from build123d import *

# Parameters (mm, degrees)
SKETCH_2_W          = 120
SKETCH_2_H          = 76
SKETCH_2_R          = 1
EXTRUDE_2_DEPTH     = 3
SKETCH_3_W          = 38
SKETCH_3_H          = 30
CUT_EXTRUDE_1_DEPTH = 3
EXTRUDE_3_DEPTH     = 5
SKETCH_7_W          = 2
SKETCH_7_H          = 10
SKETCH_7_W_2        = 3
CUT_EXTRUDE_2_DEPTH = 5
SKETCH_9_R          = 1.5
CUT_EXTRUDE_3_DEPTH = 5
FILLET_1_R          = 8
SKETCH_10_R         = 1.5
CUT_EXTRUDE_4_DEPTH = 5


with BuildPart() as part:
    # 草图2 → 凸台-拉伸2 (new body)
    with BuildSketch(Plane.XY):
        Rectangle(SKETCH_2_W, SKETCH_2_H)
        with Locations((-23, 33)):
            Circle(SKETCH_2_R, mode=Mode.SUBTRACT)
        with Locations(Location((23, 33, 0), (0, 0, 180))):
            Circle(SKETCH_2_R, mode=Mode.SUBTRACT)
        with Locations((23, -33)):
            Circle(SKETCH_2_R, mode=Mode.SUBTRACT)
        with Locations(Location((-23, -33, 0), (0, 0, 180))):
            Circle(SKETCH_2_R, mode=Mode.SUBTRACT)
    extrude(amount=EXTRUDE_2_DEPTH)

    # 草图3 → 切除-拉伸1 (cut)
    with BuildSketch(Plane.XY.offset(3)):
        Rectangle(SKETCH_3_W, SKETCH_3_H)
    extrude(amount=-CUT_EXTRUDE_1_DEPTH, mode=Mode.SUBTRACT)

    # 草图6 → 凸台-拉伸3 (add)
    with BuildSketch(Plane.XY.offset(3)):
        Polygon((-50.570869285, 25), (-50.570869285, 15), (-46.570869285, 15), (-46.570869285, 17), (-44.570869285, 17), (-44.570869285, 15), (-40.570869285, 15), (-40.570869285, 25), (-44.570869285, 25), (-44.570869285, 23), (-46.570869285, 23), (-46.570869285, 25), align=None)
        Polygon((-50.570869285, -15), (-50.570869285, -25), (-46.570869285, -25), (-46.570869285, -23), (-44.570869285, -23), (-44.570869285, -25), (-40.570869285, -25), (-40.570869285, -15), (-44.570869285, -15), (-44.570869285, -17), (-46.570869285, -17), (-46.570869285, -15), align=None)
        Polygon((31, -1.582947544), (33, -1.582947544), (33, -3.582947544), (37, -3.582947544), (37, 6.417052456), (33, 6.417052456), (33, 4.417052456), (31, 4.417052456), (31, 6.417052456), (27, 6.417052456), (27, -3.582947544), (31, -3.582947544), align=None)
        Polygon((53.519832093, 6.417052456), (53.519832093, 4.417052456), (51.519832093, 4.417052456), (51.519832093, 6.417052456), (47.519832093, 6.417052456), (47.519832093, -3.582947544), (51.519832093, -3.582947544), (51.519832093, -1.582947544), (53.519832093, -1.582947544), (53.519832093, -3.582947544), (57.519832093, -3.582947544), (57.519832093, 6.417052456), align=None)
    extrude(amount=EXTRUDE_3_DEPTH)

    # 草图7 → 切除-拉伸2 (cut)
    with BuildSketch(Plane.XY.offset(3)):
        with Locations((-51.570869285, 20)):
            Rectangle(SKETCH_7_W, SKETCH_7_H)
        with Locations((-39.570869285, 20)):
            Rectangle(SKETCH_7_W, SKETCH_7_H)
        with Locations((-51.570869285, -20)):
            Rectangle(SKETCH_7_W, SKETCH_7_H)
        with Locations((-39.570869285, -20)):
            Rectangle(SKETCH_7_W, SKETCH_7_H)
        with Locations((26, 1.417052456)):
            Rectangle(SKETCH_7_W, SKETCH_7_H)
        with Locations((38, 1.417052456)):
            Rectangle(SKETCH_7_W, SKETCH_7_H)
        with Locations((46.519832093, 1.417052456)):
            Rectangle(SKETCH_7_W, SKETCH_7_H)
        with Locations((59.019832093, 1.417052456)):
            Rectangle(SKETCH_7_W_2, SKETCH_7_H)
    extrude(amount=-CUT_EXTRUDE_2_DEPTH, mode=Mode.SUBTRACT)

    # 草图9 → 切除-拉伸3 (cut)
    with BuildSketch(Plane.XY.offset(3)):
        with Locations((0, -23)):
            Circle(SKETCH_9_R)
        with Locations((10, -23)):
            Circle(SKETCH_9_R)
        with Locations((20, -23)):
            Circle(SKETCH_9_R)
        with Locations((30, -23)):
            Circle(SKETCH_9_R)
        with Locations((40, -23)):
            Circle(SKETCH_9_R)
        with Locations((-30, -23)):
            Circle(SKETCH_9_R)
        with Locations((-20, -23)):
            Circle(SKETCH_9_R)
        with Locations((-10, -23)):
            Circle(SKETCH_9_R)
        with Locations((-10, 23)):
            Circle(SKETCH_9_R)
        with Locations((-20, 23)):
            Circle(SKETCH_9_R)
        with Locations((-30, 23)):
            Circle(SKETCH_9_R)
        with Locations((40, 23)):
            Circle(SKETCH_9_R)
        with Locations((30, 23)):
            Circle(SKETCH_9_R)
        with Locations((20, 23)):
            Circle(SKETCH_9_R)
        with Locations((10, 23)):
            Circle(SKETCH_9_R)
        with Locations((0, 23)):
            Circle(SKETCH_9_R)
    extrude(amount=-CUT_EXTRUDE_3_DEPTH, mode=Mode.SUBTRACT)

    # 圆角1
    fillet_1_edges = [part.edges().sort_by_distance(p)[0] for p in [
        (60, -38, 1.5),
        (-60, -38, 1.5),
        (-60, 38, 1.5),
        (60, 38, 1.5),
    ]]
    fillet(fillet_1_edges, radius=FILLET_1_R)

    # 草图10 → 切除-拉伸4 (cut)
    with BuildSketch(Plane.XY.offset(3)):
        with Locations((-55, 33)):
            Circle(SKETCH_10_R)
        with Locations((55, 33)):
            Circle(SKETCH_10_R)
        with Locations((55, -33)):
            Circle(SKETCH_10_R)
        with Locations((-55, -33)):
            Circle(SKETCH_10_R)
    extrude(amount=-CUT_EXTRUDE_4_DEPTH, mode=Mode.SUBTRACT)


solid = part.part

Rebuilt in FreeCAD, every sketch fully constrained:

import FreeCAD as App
import Part
import Sketcher

V = App.Vector


def edges_at(feature, points):
    """Names of the edges that pass closest to the given points."""
    edges = feature.Shape.Edges
    near = lambda p: min(range(len(edges)), key=lambda i: edges[i].distToShape(Part.Vertex(*p))[0])
    return sorted({f"Edge{near(p) + 1}" for p in points})

doc = App.newDocument("Part")
body = doc.addObject("PartDesign::Body", "Body")

# Sketch on XY plane
sketch1 = body.newObject("Sketcher::SketchObject", "Sketch")
sketch1.AttachmentSupport = (doc.getObject("XY_Plane"), [""])
sketch1.MapMode = "FlatFace"
sketch1.addGeometry([
    Part.LineSegment(V(-60, 38, 0), V(-60, -38, 0)),  # 0
    Part.LineSegment(V(-60, -38, 0), V(60, -38, 0)),  # 1
    Part.LineSegment(V(60, -38, 0), V(60, 38, 0)),  # 2
    Part.LineSegment(V(60, 38, 0), V(-60, 38, 0)),  # 3
    Part.Circle(V(-23, -33, 0), V(0, 0, 1), 1),  # 4
    Part.Circle(V(23, -33, 0), V(0, 0, 1), 1),  # 5
    Part.Circle(V(-23, 33, 0), V(0, 0, 1), 1),  # 6
    Part.Circle(V(23, 33, 0), V(0, 0, 1), 1),  # 7
], False)
sketch1.addConstraint([
    Sketcher.Constraint("Coincident", 0, 2, 1, 1),
    Sketcher.Constraint("Coincident", 1, 2, 2, 1),
    Sketcher.Constraint("Coincident", 2, 2, 3, 1),
    Sketcher.Constraint("Coincident", 3, 2, 0, 1),
    Sketcher.Constraint("Vertical", 0),
    Sketcher.Constraint("Horizontal", 1),
    Sketcher.Constraint("Vertical", 2),
    Sketcher.Constraint("Horizontal", 3),
    Sketcher.Constraint("Equal", 4, 5),
    Sketcher.Constraint("Equal", 5, 6),
    Sketcher.Constraint("Equal", 6, 7),
    Sketcher.Constraint("Symmetric", 5, 3, 6, 3, -1, 1),
    Sketcher.Constraint("Symmetric", 4, 3, 7, 3, -1, 1),
    Sketcher.Constraint("Symmetric", 0, 2, 2, 2, -1, 1),
    Sketcher.Constraint("Symmetric", 4, 3, 5, 3, -2),
    Sketcher.Constraint("Diameter", 4, 2.0),
    Sketcher.Constraint("DistanceX", 1, 1, 1, 2, 120.0),
    Sketcher.Constraint("DistanceY", 0, 2, 0, 1, 76.0),
    Sketcher.Constraint("DistanceX", 4, 3, -1, 1, 23.0),
    Sketcher.Constraint("DistanceY", 4, 3, -1, 1, 33.0),
])
pad1 = body.newObject("PartDesign::Pad", "Pad")
pad1.Profile = sketch1
pad1.Length = 3

# Sketch on XY plane
sketch2 = body.newObject("Sketcher::SketchObject", "Sketch001")
sketch2.AttachmentSupport = (doc.getObject("XY_Plane"), [""])
sketch2.MapMode = "FlatFace"
sketch2.AttachmentOffset = App.Placement(V(0, 0, 3), App.Rotation())
sketch2.addGeometry([
    Part.LineSegment(V(-19, 15, 0), V(-19, -15, 0)),
    Part.LineSegment(V(-19, -15, 0), V(19, -15, 0)),
    Part.LineSegment(V(19, -15, 0), V(19, 15, 0)),
    Part.LineSegment(V(19, 15, 0), V(-19, 15, 0)),
], False)
sketch2.addConstraint([
    Sketcher.Constraint("Coincident", 0, 2, 1, 1),
    Sketcher.Constraint("Coincident", 1, 2, 2, 1),
    Sketcher.Constraint("Coincident", 2, 2, 3, 1),
    Sketcher.Constraint("Coincident", 3, 2, 0, 1),
    Sketcher.Constraint("Vertical", 0),
    Sketcher.Constraint("Horizontal", 1),
    Sketcher.Constraint("Vertical", 2),
    Sketcher.Constraint("Horizontal", 3),
    Sketcher.Constraint("Symmetric", 0, 2, 2, 2, -1, 1),
    Sketcher.Constraint("DistanceX", 1, 1, 1, 2, 38.0),
    Sketcher.Constraint("DistanceY", 0, 2, 0, 1, 30.0),
])
pocket1 = body.newObject("PartDesign::Pocket", "Pocket")
pocket1.Profile = sketch2
pocket1.Length = 3

# Sketch on XY plane
sketch3 = body.newObject("Sketcher::SketchObject", "Sketch002")
sketch3.AttachmentSupport = (doc.getObject("XY_Plane"), [""])
sketch3.MapMode = "FlatFace"
sketch3.AttachmentOffset = App.Placement(V(0, 0, 3), App.Rotation())
sketch3.addGeometry([
    Part.LineSegment(V(-50.6, 25, 0), V(-50.6, 15, 0)),  # 0
    Part.LineSegment(V(-50.6, 15, 0), V(-46.6, 15, 0)),  # 1
    Part.LineSegment(V(-46.6, 15, 0), V(-46.6, 17, 0)),  # 2
    Part.LineSegment(V(-46.6, 17, 0), V(-44.6, 17, 0)),  # 3
    Part.LineSegment(V(-44.6, 17, 0), V(-44.6, 15, 0)),  # 4
    Part.LineSegment(V(-44.6, 15, 0), V(-40.6, 15, 0)),  # 5
    Part.LineSegment(V(-40.6, 15, 0), V(-40.6, 25, 0)),  # 6
    Part.LineSegment(V(-40.6, 25, 0), V(-44.6, 25, 0)),  # 7
    Part.LineSegment(V(-44.6, 25, 0), V(-44.6, 23, 0)),  # 8
    Part.LineSegment(V(-44.6, 23, 0), V(-46.6, 23, 0)),  # 9
    Part.LineSegment(V(-46.6, 23, 0), V(-46.6, 25, 0)),  # 10
    Part.LineSegment(V(-46.6, 25, 0), V(-50.6, 25, 0)),  # 11
    Part.LineSegment(V(-50.6, -15, 0), V(-50.6, -25, 0)),  # 12
    Part.LineSegment(V(-50.6, -25, 0), V(-46.6, -25, 0)),  # 13
    Part.LineSegment(V(-46.6, -25, 0), V(-46.6, -23, 0)),  # 14
    Part.LineSegment(V(-46.6, -23, 0), V(-44.6, -23, 0)),  # 15
    Part.LineSegment(V(-44.6, -23, 0), V(-44.6, -25, 0)),  # 16
    Part.LineSegment(V(-44.6, -25, 0), V(-40.6, -25, 0)),  # 17
    Part.LineSegment(V(-40.6, -25, 0), V(-40.6, -15, 0)),  # 18
    Part.LineSegment(V(-40.6, -15, 0), V(-44.6, -15, 0)),  # 19
    Part.LineSegment(V(-44.6, -15, 0), V(-44.6, -17, 0)),  # 20
    Part.LineSegment(V(-44.6, -17, 0), V(-46.6, -17, 0)),  # 21
    Part.LineSegment(V(-46.6, -17, 0), V(-46.6, -15, 0)),  # 22
    Part.LineSegment(V(-46.6, -15, 0), V(-50.6, -15, 0)),  # 23
    Part.LineSegment(V(31, -1.6, 0), V(33, -1.6, 0)),  # 24
    Part.LineSegment(V(33, -1.6, 0), V(33, -3.6, 0)),  # 25
    Part.LineSegment(V(33, -3.6, 0), V(37, -3.6, 0)),  # 26
    Part.LineSegment(V(37, -3.6, 0), V(37, 6.4, 0)),  # 27
    Part.LineSegment(V(37, 6.4, 0), V(33, 6.4, 0)),  # 28
    Part.LineSegment(V(33, 6.4, 0), V(33, 4.4, 0)),  # 29
    Part.LineSegment(V(33, 4.4, 0), V(31, 4.4, 0)),  # 30
    Part.LineSegment(V(31, 4.4, 0), V(31, 6.4, 0)),  # 31
    Part.LineSegment(V(31, 6.4, 0), V(27, 6.4, 0)),  # 32
    Part.LineSegment(V(27, 6.4, 0), V(27, -3.6, 0)),  # 33
    Part.LineSegment(V(27, -3.6, 0), V(31, -3.6, 0)),  # 34
    Part.LineSegment(V(31, -3.6, 0), V(31, -1.6, 0)),  # 35
    Part.LineSegment(V(53.5, 6.4, 0), V(53.5, 4.4, 0)),  # 36
    Part.LineSegment(V(53.5, 4.4, 0), V(51.5, 4.4, 0)),  # 37
    Part.LineSegment(V(51.5, 4.4, 0), V(51.5, 6.4, 0)),  # 38
    Part.LineSegment(V(51.5, 6.4, 0), V(47.5, 6.4, 0)),  # 39
    Part.LineSegment(V(47.5, 6.4, 0), V(47.5, -3.6, 0)),  # 40
    Part.LineSegment(V(47.5, -3.6, 0), V(51.5, -3.6, 0)),  # 41
    Part.LineSegment(V(51.5, -3.6, 0), V(51.5, -1.6, 0)),  # 42
    Part.LineSegment(V(51.5, -1.6, 0), V(53.5, -1.6, 0)),  # 43
    Part.LineSegment(V(53.5, -1.6, 0), V(53.5, -3.6, 0)),  # 44
    Part.LineSegment(V(53.5, -3.6, 0), V(57.5, -3.6, 0)),  # 45
    Part.LineSegment(V(57.5, -3.6, 0), V(57.5, 6.4, 0)),  # 46
    Part.LineSegment(V(57.5, 6.4, 0), V(53.5, 6.4, 0)),  # 47
], False)
sketch3.addConstraint([
    Sketcher.Constraint("Coincident", 0, 2, 1, 1),
    Sketcher.Constraint("Coincident", 1, 2, 2, 1),
    Sketcher.Constraint("Coincident", 2, 2, 3, 1),
    Sketcher.Constraint("Coincident", 3, 2, 4, 1),
    Sketcher.Constraint("Coincident", 4, 2, 5, 1),
    Sketcher.Constraint("Coincident", 5, 2, 6, 1),
    Sketcher.Constraint("Coincident", 6, 2, 7, 1),
    Sketcher.Constraint("Coincident", 7, 2, 8, 1),
    Sketcher.Constraint("Coincident", 8, 2, 9, 1),
    Sketcher.Constraint("Coincident", 9, 2, 10, 1),
    Sketcher.Constraint("Coincident", 10, 2, 11, 1),
    Sketcher.Constraint("Coincident", 11, 2, 0, 1),
    Sketcher.Constraint("Coincident", 12, 2, 13, 1),
    Sketcher.Constraint("Coincident", 13, 2, 14, 1),
    Sketcher.Constraint("Coincident", 14, 2, 15, 1),
    Sketcher.Constraint("Coincident", 15, 2, 16, 1),
    Sketcher.Constraint("Coincident", 16, 2, 17, 1),
    Sketcher.Constraint("Coincident", 17, 2, 18, 1),
    Sketcher.Constraint("Coincident", 18, 2, 19, 1),
    Sketcher.Constraint("Coincident", 19, 2, 20, 1),
    Sketcher.Constraint("Coincident", 20, 2, 21, 1),
    Sketcher.Constraint("Coincident", 21, 2, 22, 1),
    Sketcher.Constraint("Coincident", 22, 2, 23, 1),
    Sketcher.Constraint("Coincident", 23, 2, 12, 1),
    Sketcher.Constraint("Coincident", 24, 2, 25, 1),
    Sketcher.Constraint("Coincident", 25, 2, 26, 1),
    Sketcher.Constraint("Coincident", 26, 2, 27, 1),
    Sketcher.Constraint("Coincident", 27, 2, 28, 1),
    Sketcher.Constraint("Coincident", 28, 2, 29, 1),
    Sketcher.Constraint("Coincident", 29, 2, 30, 1),
    Sketcher.Constraint("Coincident", 30, 2, 31, 1),
    Sketcher.Constraint("Coincident", 31, 2, 32, 1),
    Sketcher.Constraint("Coincident", 32, 2, 33, 1),
    Sketcher.Constraint("Coincident", 33, 2, 34, 1),
    Sketcher.Constraint("Coincident", 34, 2, 35, 1),
    Sketcher.Constraint("Coincident", 35, 2, 24, 1),
    Sketcher.Constraint("Coincident", 36, 2, 37, 1),
    Sketcher.Constraint("Coincident", 37, 2, 38, 1),
    Sketcher.Constraint("Coincident", 38, 2, 39, 1),
    Sketcher.Constraint("Coincident", 39, 2, 40, 1),
    Sketcher.Constraint("Coincident", 40, 2, 41, 1),
    Sketcher.Constraint("Coincident", 41, 2, 42, 1),
    Sketcher.Constraint("Coincident", 42, 2, 43, 1),
    Sketcher.Constraint("Coincident", 43, 2, 44, 1),
    Sketcher.Constraint("Coincident", 44, 2, 45, 1),
    Sketcher.Constraint("Coincident", 45, 2, 46, 1),
    Sketcher.Constraint("Coincident", 46, 2, 47, 1),
    Sketcher.Constraint("Coincident", 47, 2, 36, 1),
    Sketcher.Constraint("Vertical", 0),
    Sketcher.Constraint("Horizontal", 1),
    Sketcher.Constraint("Vertical", 2),
    Sketcher.Constraint("Horizontal", 3),
    Sketcher.Constraint("Vertical", 4),
    Sketcher.Constraint("Horizontal", 5),
    Sketcher.Constraint("Vertical", 6),
    Sketcher.Constraint("Horizontal", 7),
    Sketcher.Constraint("Vertical", 8),
    Sketcher.Constraint("Horizontal", 9),
    Sketcher.Constraint("Vertical", 10),
    Sketcher.Constraint("Horizontal", 11),
    Sketcher.Constraint("Vertical", 12),
    Sketcher.Constraint("Horizontal", 13),
    Sketcher.Constraint("Vertical", 14),
    Sketcher.Constraint("Horizontal", 15),
    Sketcher.Constraint("Vertical", 16),
    Sketcher.Constraint("Horizontal", 17),
    Sketcher.Constraint("Vertical", 18),
    Sketcher.Constraint("Horizontal", 19),
    Sketcher.Constraint("Vertical", 20),
    Sketcher.Constraint("Horizontal", 21),
    Sketcher.Constraint("Vertical", 22),
    Sketcher.Constraint("Horizontal", 23),
    Sketcher.Constraint("Horizontal", 24),
    Sketcher.Constraint("Vertical", 25),
    Sketcher.Constraint("Horizontal", 26),
    Sketcher.Constraint("Vertical", 27),
    Sketcher.Constraint("Horizontal", 28),
    Sketcher.Constraint("Vertical", 29),
    Sketcher.Constraint("Horizontal", 30),
    Sketcher.Constraint("Vertical", 31),
    Sketcher.Constraint("Horizontal", 32),
    Sketcher.Constraint("Vertical", 33),
    Sketcher.Constraint("Horizontal", 34),
    Sketcher.Constraint("Vertical", 35),
    Sketcher.Constraint("Vertical", 36),
    Sketcher.Constraint("Horizontal", 37),
    Sketcher.Constraint("Vertical", 38),
    Sketcher.Constraint("Horizontal", 39),
    Sketcher.Constraint("Vertical", 40),
    Sketcher.Constraint("Horizontal", 41),
    Sketcher.Constraint("Vertical", 42),
    Sketcher.Constraint("Horizontal", 43),
    Sketcher.Constraint("Vertical", 44),
    Sketcher.Constraint("Horizontal", 45),
    Sketcher.Constraint("Vertical", 46),
    Sketcher.Constraint("Horizontal", 47),
    Sketcher.Constraint("Symmetric", 11, 2, 12, 2, -1),
    Sketcher.Constraint("Symmetric", 9, 2, 14, 2, -1),
    Sketcher.Constraint("Symmetric", 7, 2, 16, 2, -1),
    Sketcher.Constraint("Symmetric", 5, 2, 18, 2, -1),
    Sketcher.Constraint("Symmetric", 3, 2, 20, 2, -1),
    Sketcher.Constraint("Symmetric", 1, 2, 22, 2, -1),
    Sketcher.Constraint("Horizontal", 1, 2, 4, 2),
    Sketcher.Constraint("Horizontal", 7, 2, 10, 2),
    Sketcher.Constraint("Horizontal", 28, 2, 31, 2),
    Sketcher.Constraint("Horizontal", 26, 2, 33, 2),
    Sketcher.Constraint("Horizontal", 30, 2, 36, 2),
    Sketcher.Constraint("Horizontal", 32, 2, 38, 2),
    Sketcher.Constraint("Horizontal", 34, 2, 40, 2),
    Sketcher.Constraint("Horizontal", 35, 2, 42, 2),
    Sketcher.Constraint("Horizontal", 41, 2, 44, 2),
    Sketcher.Constraint("Horizontal", 39, 2, 46, 2),
    Sketcher.Constraint("Vertical", 4, 2, 7, 2),
    Sketcher.Constraint("Vertical", 2, 2, 9, 2),
    Sketcher.Constraint("Vertical", 25, 2, 28, 2),
    Sketcher.Constraint("Vertical", 31, 2, 34, 2),
    Sketcher.Constraint("Vertical", 38, 2, 41, 2),
    Sketcher.Constraint("Vertical", 36, 2, 43, 2),
    Sketcher.Constraint("Equal", 1, 5),
    Sketcher.Constraint("Equal", 21, 24),
    Sketcher.Constraint("Equal", 23, 26),
    Sketcher.Constraint("Equal", 28, 32),
    Sketcher.Constraint("Equal", 30, 37),
    Sketcher.Constraint("Equal", 34, 39),
    Sketcher.Constraint("Equal", 41, 45),
    Sketcher.Constraint("Equal", 43, 2),
    Sketcher.Constraint("Equal", 4, 8),
    Sketcher.Constraint("Equal", 22, 25),
    Sketcher.Constraint("Equal", 18, 27),
    Sketcher.Constraint("Equal", 25, 29),
    Sketcher.Constraint("DistanceX", 1, 1, 1, 2, 4.0),
    Sketcher.Constraint("DistanceX", 3, 1, 3, 2, 2.0),
    Sketcher.Constraint("DistanceY", 0, 2, 0, 1, 10.0),
    Sketcher.Constraint("DistanceY", -1, 1, 0, 2, 15.0),
    Sketcher.Constraint("DistanceX", -1, 1, 24, 2, 33.0),
    Sketcher.Constraint("DistanceX", 0, 2, -1, 1, 50.570869),
    Sketcher.Constraint("DistanceY", 24, 2, -1, 1, 1.582948),
    Sketcher.Constraint("DistanceX", -1, 1, 36, 2, 53.519832),
])
pad2 = body.newObject("PartDesign::Pad", "Pad001")
pad2.Profile = sketch3
pad2.Length = 5

# Sketch on XY plane
sketch4 = body.newObject("Sketcher::SketchObject", "Sketch003")
sketch4.AttachmentSupport = (doc.getObject("XY_Plane"), [""])
sketch4.MapMode = "FlatFace"
sketch4.AttachmentOffset = App.Placement(V(0, 0, 3), App.Rotation())
sketch4.addGeometry([
    Part.LineSegment(V(-52.6, 25, 0), V(-52.6, 15, 0)),  # 0
    Part.LineSegment(V(-52.6, 15, 0), V(-50.6, 15, 0)),  # 1
    Part.LineSegment(V(-50.6, 15, 0), V(-50.6, 25, 0)),  # 2
    Part.LineSegment(V(-50.6, 25, 0), V(-52.6, 25, 0)),  # 3
    Part.LineSegment(V(-40.6, 25, 0), V(-40.6, 15, 0)),  # 4
    Part.LineSegment(V(-40.6, 15, 0), V(-38.6, 15, 0)),  # 5
    Part.LineSegment(V(-38.6, 15, 0), V(-38.6, 25, 0)),  # 6
    Part.LineSegment(V(-38.6, 25, 0), V(-40.6, 25, 0)),  # 7
    Part.LineSegment(V(-52.6, -15, 0), V(-52.6, -25, 0)),  # 8
    Part.LineSegment(V(-52.6, -25, 0), V(-50.6, -25, 0)),  # 9
    Part.LineSegment(V(-50.6, -25, 0), V(-50.6, -15, 0)),  # 10
    Part.LineSegment(V(-50.6, -15, 0), V(-52.6, -15, 0)),  # 11
    Part.LineSegment(V(-40.6, -15, 0), V(-40.6, -25, 0)),  # 12
    Part.LineSegment(V(-40.6, -25, 0), V(-38.6, -25, 0)),  # 13
    Part.LineSegment(V(-38.6, -25, 0), V(-38.6, -15, 0)),  # 14
    Part.LineSegment(V(-38.6, -15, 0), V(-40.6, -15, 0)),  # 15
    Part.LineSegment(V(25, 6.4, 0), V(25, -3.6, 0)),  # 16
    Part.LineSegment(V(25, -3.6, 0), V(27, -3.6, 0)),  # 17
    Part.LineSegment(V(27, -3.6, 0), V(27, 6.4, 0)),  # 18
    Part.LineSegment(V(27, 6.4, 0), V(25, 6.4, 0)),  # 19
    Part.LineSegment(V(37, 6.4, 0), V(37, -3.6, 0)),  # 20
    Part.LineSegment(V(37, -3.6, 0), V(39, -3.6, 0)),  # 21
    Part.LineSegment(V(39, -3.6, 0), V(39, 6.4, 0)),  # 22
    Part.LineSegment(V(39, 6.4, 0), V(37, 6.4, 0)),  # 23
    Part.LineSegment(V(45.5, 6.4, 0), V(45.5, -3.6, 0)),  # 24
    Part.LineSegment(V(45.5, -3.6, 0), V(47.5, -3.6, 0)),  # 25
    Part.LineSegment(V(47.5, -3.6, 0), V(47.5, 6.4, 0)),  # 26
    Part.LineSegment(V(47.5, 6.4, 0), V(45.5, 6.4, 0)),  # 27
    Part.LineSegment(V(57.5, 6.4, 0), V(57.5, -3.6, 0)),  # 28
    Part.LineSegment(V(57.5, -3.6, 0), V(60.5, -3.6, 0)),  # 29
    Part.LineSegment(V(60.5, -3.6, 0), V(60.5, 6.4, 0)),  # 30
    Part.LineSegment(V(60.5, 6.4, 0), V(57.5, 6.4, 0)),  # 31
], False)
sketch4.addConstraint([
    Sketcher.Constraint("Coincident", 0, 2, 1, 1),
    Sketcher.Constraint("Coincident", 1, 2, 2, 1),
    Sketcher.Constraint("Coincident", 2, 2, 3, 1),
    Sketcher.Constraint("Coincident", 3, 2, 0, 1),
    Sketcher.Constraint("Coincident", 4, 2, 5, 1),
    Sketcher.Constraint("Coincident", 5, 2, 6, 1),
    Sketcher.Constraint("Coincident", 6, 2, 7, 1),
    Sketcher.Constraint("Coincident", 7, 2, 4, 1),
    Sketcher.Constraint("Coincident", 8, 2, 9, 1),
    Sketcher.Constraint("Coincident", 9, 2, 10, 1),
    Sketcher.Constraint("Coincident", 10, 2, 11, 1),
    Sketcher.Constraint("Coincident", 11, 2, 8, 1),
    Sketcher.Constraint("Coincident", 12, 2, 13, 1),
    Sketcher.Constraint("Coincident", 13, 2, 14, 1),
    Sketcher.Constraint("Coincident", 14, 2, 15, 1),
    Sketcher.Constraint("Coincident", 15, 2, 12, 1),
    Sketcher.Constraint("Coincident", 16, 2, 17, 1),
    Sketcher.Constraint("Coincident", 17, 2, 18, 1),
    Sketcher.Constraint("Coincident", 18, 2, 19, 1),
    Sketcher.Constraint("Coincident", 19, 2, 16, 1),
    Sketcher.Constraint("Coincident", 20, 2, 21, 1),
    Sketcher.Constraint("Coincident", 21, 2, 22, 1),
    Sketcher.Constraint("Coincident", 22, 2, 23, 1),
    Sketcher.Constraint("Coincident", 23, 2, 20, 1),
    Sketcher.Constraint("Coincident", 24, 2, 25, 1),
    Sketcher.Constraint("Coincident", 25, 2, 26, 1),
    Sketcher.Constraint("Coincident", 26, 2, 27, 1),
    Sketcher.Constraint("Coincident", 27, 2, 24, 1),
    Sketcher.Constraint("Coincident", 28, 2, 29, 1),
    Sketcher.Constraint("Coincident", 29, 2, 30, 1),
    Sketcher.Constraint("Coincident", 30, 2, 31, 1),
    Sketcher.Constraint("Coincident", 31, 2, 28, 1),
    Sketcher.Constraint("Vertical", 0),
    Sketcher.Constraint("Horizontal", 1),
    Sketcher.Constraint("Vertical", 2),
    Sketcher.Constraint("Horizontal", 3),
    Sketcher.Constraint("Vertical", 4),
    Sketcher.Constraint("Horizontal", 5),
    Sketcher.Constraint("Vertical", 6),
    Sketcher.Constraint("Horizontal", 7),
    Sketcher.Constraint("Vertical", 8),
    Sketcher.Constraint("Horizontal", 9),
    Sketcher.Constraint("Vertical", 10),
    Sketcher.Constraint("Horizontal", 11),
    Sketcher.Constraint("Vertical", 12),
    Sketcher.Constraint("Horizontal", 13),
    Sketcher.Constraint("Vertical", 14),
    Sketcher.Constraint("Horizontal", 15),
    Sketcher.Constraint("Vertical", 16),
    Sketcher.Constraint("Horizontal", 17),
    Sketcher.Constraint("Vertical", 18),
    Sketcher.Constraint("Horizontal", 19),
    Sketcher.Constraint("Vertical", 20),
    Sketcher.Constraint("Horizontal", 21),
    Sketcher.Constraint("Vertical", 22),
    Sketcher.Constraint("Horizontal", 23),
    Sketcher.Constraint("Vertical", 24),
    Sketcher.Constraint("Horizontal", 25),
    Sketcher.Constraint("Vertical", 26),
    Sketcher.Constraint("Horizontal", 27),
    Sketcher.Constraint("Vertical", 28),
    Sketcher.Constraint("Horizontal", 29),
    Sketcher.Constraint("Vertical", 30),
    Sketcher.Constraint("Horizontal", 31),
    Sketcher.Constraint("Symmetric", 3, 2, 8, 2, -1),
    Sketcher.Constraint("Symmetric", 1, 2, 10, 2, -1),
    Sketcher.Constraint("Symmetric", 7, 2, 12, 2, -1),
    Sketcher.Constraint("Symmetric", 5, 2, 14, 2, -1),
    Sketcher.Constraint("Horizontal", 1, 2, 4, 2),
    Sketcher.Constraint("Horizontal", 3, 2, 6, 2),
    Sketcher.Constraint("Horizontal", 17, 2, 20, 2),
    Sketcher.Constraint("Horizontal", 19, 2, 22, 2),
    Sketcher.Constraint("Horizontal", 21, 2, 24, 2),
    Sketcher.Constraint("Horizontal", 23, 2, 26, 2),
    Sketcher.Constraint("Horizontal", 25, 2, 28, 2),
    Sketcher.Constraint("Horizontal", 27, 2, 30, 2),
    Sketcher.Constraint("Equal", 3, 5),
    Sketcher.Constraint("Equal", 15, 17),
    Sketcher.Constraint("Equal", 19, 21),
    Sketcher.Constraint("Equal", 23, 25),
    Sketcher.Constraint("Equal", 14, 16),
    Sketcher.Constraint("DistanceX", 1, 1, 1, 2, 2.0),
    Sketcher.Constraint("DistanceX", 29, 1, 29, 2, 3.0),
    Sketcher.Constraint("DistanceY", 0, 2, 0, 1, 10.0),
    Sketcher.Constraint("DistanceY", -1, 1, 0, 2, 15.0),
    Sketcher.Constraint("DistanceX", -1, 1, 16, 2, 25.0),
    Sketcher.Constraint("DistanceX", -1, 1, 20, 2, 37.0),
    Sketcher.Constraint("DistanceX", 1, 2, 4, 2, 10.0),
    Sketcher.Constraint("DistanceX", 25, 2, 28, 2, 10.0),
    Sketcher.Constraint("DistanceX", 0, 2, -1, 1, 52.570869),
    Sketcher.Constraint("DistanceY", 16, 2, -1, 1, 3.582948),
    Sketcher.Constraint("DistanceX", -1, 1, 24, 2, 45.519832),
])
pocket2 = body.newObject("PartDesign::Pocket", "Pocket001")
pocket2.Profile = sketch4
pocket2.Length = 5

# Sketch on XY plane
sketch5 = body.newObject("Sketcher::SketchObject", "Sketch004")
sketch5.AttachmentSupport = (doc.getObject("XY_Plane"), [""])
sketch5.MapMode = "FlatFace"
sketch5.AttachmentOffset = App.Placement(V(0, 0, 3), App.Rotation())
sketch5.addGeometry([
    Part.Circle(V(0, -23, 0), V(0, 0, 1), 1.5),  # 0
    Part.Circle(V(10, -23, 0), V(0, 0, 1), 1.5),  # 1
    Part.Circle(V(20, -23, 0), V(0, 0, 1), 1.5),  # 2
    Part.Circle(V(30, -23, 0), V(0, 0, 1), 1.5),  # 3
    Part.Circle(V(40, -23, 0), V(0, 0, 1), 1.5),  # 4
    Part.Circle(V(-30, -23, 0), V(0, 0, 1), 1.5),  # 5
    Part.Circle(V(-20, -23, 0), V(0, 0, 1), 1.5),  # 6
    Part.Circle(V(-10, -23, 0), V(0, 0, 1), 1.5),  # 7
    Part.Circle(V(-10, 23, 0), V(0, 0, 1), 1.5),  # 8
    Part.Circle(V(-20, 23, 0), V(0, 0, 1), 1.5),  # 9
    Part.Circle(V(-30, 23, 0), V(0, 0, 1), 1.5),  # 10
    Part.Circle(V(40, 23, 0), V(0, 0, 1), 1.5),  # 11
    Part.Circle(V(30, 23, 0), V(0, 0, 1), 1.5),  # 12
    Part.Circle(V(20, 23, 0), V(0, 0, 1), 1.5),  # 13
    Part.Circle(V(10, 23, 0), V(0, 0, 1), 1.5),  # 14
    Part.Circle(V(0, 23, 0), V(0, 0, 1), 1.5),  # 15
], False)
sketch5.addConstraint([
    Sketcher.Constraint("Equal", 0, 1),
    Sketcher.Constraint("Equal", 1, 2),
    Sketcher.Constraint("Equal", 2, 3),
    Sketcher.Constraint("Equal", 3, 4),
    Sketcher.Constraint("Equal", 4, 5),
    Sketcher.Constraint("Equal", 5, 6),
    Sketcher.Constraint("Equal", 6, 7),
    Sketcher.Constraint("Equal", 7, 8),
    Sketcher.Constraint("Equal", 8, 9),
    Sketcher.Constraint("Equal", 9, 10),
    Sketcher.Constraint("Equal", 10, 11),
    Sketcher.Constraint("Equal", 11, 12),
    Sketcher.Constraint("Equal", 12, 13),
    Sketcher.Constraint("Equal", 13, 14),
    Sketcher.Constraint("Equal", 14, 15),
    Sketcher.Constraint("Symmetric", 1, 3, 8, 3, -1, 1),
    Sketcher.Constraint("Symmetric", 2, 3, 9, 3, -1, 1),
    Sketcher.Constraint("Symmetric", 3, 3, 10, 3, -1, 1),
    Sketcher.Constraint("Symmetric", 5, 3, 12, 3, -1, 1),
    Sketcher.Constraint("Symmetric", 6, 3, 13, 3, -1, 1),
    Sketcher.Constraint("Symmetric", 7, 3, 14, 3, -1, 1),
    Sketcher.Constraint("Symmetric", 0, 3, 15, 3, -1, 1),
    Sketcher.Constraint("Symmetric", 3, 3, 5, 3, -2),
    Sketcher.Constraint("Symmetric", 2, 3, 6, 3, -2),
    Sketcher.Constraint("Symmetric", 1, 3, 7, 3, -2),
    Sketcher.Constraint("Symmetric", 4, 3, 11, 3, -1),
    Sketcher.Constraint("PointOnObject", 0, 3, -2),
    Sketcher.Constraint("Horizontal", 0, 3, 1, 3),
    Sketcher.Constraint("Horizontal", 1, 3, 2, 3),
    Sketcher.Constraint("Horizontal", 2, 3, 3, 3),
    Sketcher.Constraint("Horizontal", 3, 3, 4, 3),
    Sketcher.Constraint("Diameter", 0, 3.0),
    Sketcher.Constraint("DistanceY", 0, 3, -1, 1, 23.0),
    Sketcher.Constraint("DistanceX", -1, 1, 1, 3, 10.0),
    Sketcher.Constraint("DistanceX", -1, 1, 2, 3, 20.0),
    Sketcher.Constraint("DistanceX", -1, 1, 3, 3, 30.0),
    Sketcher.Constraint("DistanceX", -1, 1, 4, 3, 40.0),
])
pocket3 = body.newObject("PartDesign::Pocket", "Pocket002")
pocket3.Profile = sketch5
pocket3.Length = 5
doc.recompute()

fillet = body.newObject("PartDesign::Fillet", "Fillet")
fillet.Base = (pocket3, edges_at(pocket3, [
    (60, -38, 1.5),
    (-60, -38, 1.5),
    (-60, 38, 1.5),
    (60, 38, 1.5),
]))
fillet.Radius = 8

# Sketch on XY plane
sketch6 = body.newObject("Sketcher::SketchObject", "Sketch005")
sketch6.AttachmentSupport = (doc.getObject("XY_Plane"), [""])
sketch6.MapMode = "FlatFace"
sketch6.AttachmentOffset = App.Placement(V(0, 0, 3), App.Rotation())
sketch6.addGeometry([
    Part.Circle(V(-55, 33, 0), V(0, 0, 1), 1.5),
    Part.Circle(V(55, 33, 0), V(0, 0, 1), 1.5),
    Part.Circle(V(55, -33, 0), V(0, 0, 1), 1.5),
    Part.Circle(V(-55, -33, 0), V(0, 0, 1), 1.5),
], False)
sketch6.addConstraint([
    Sketcher.Constraint("Equal", 0, 1),
    Sketcher.Constraint("Equal", 1, 2),
    Sketcher.Constraint("Equal", 2, 3),
    Sketcher.Constraint("Symmetric", 0, 3, 2, 3, -1, 1),
    Sketcher.Constraint("Symmetric", 1, 3, 3, 3, -1, 1),
    Sketcher.Constraint("Symmetric", 0, 3, 1, 3, -2),
    Sketcher.Constraint("Diameter", 0, 3.0),
    Sketcher.Constraint("DistanceX", 0, 3, -1, 1, 55.0),
    Sketcher.Constraint("DistanceY", -1, 1, 0, 3, 33.0),
])
pocket4 = body.newObject("PartDesign::Pocket", "Pocket003")
pocket4.Profile = sketch6
pocket4.Length = 5

doc.recompute()
